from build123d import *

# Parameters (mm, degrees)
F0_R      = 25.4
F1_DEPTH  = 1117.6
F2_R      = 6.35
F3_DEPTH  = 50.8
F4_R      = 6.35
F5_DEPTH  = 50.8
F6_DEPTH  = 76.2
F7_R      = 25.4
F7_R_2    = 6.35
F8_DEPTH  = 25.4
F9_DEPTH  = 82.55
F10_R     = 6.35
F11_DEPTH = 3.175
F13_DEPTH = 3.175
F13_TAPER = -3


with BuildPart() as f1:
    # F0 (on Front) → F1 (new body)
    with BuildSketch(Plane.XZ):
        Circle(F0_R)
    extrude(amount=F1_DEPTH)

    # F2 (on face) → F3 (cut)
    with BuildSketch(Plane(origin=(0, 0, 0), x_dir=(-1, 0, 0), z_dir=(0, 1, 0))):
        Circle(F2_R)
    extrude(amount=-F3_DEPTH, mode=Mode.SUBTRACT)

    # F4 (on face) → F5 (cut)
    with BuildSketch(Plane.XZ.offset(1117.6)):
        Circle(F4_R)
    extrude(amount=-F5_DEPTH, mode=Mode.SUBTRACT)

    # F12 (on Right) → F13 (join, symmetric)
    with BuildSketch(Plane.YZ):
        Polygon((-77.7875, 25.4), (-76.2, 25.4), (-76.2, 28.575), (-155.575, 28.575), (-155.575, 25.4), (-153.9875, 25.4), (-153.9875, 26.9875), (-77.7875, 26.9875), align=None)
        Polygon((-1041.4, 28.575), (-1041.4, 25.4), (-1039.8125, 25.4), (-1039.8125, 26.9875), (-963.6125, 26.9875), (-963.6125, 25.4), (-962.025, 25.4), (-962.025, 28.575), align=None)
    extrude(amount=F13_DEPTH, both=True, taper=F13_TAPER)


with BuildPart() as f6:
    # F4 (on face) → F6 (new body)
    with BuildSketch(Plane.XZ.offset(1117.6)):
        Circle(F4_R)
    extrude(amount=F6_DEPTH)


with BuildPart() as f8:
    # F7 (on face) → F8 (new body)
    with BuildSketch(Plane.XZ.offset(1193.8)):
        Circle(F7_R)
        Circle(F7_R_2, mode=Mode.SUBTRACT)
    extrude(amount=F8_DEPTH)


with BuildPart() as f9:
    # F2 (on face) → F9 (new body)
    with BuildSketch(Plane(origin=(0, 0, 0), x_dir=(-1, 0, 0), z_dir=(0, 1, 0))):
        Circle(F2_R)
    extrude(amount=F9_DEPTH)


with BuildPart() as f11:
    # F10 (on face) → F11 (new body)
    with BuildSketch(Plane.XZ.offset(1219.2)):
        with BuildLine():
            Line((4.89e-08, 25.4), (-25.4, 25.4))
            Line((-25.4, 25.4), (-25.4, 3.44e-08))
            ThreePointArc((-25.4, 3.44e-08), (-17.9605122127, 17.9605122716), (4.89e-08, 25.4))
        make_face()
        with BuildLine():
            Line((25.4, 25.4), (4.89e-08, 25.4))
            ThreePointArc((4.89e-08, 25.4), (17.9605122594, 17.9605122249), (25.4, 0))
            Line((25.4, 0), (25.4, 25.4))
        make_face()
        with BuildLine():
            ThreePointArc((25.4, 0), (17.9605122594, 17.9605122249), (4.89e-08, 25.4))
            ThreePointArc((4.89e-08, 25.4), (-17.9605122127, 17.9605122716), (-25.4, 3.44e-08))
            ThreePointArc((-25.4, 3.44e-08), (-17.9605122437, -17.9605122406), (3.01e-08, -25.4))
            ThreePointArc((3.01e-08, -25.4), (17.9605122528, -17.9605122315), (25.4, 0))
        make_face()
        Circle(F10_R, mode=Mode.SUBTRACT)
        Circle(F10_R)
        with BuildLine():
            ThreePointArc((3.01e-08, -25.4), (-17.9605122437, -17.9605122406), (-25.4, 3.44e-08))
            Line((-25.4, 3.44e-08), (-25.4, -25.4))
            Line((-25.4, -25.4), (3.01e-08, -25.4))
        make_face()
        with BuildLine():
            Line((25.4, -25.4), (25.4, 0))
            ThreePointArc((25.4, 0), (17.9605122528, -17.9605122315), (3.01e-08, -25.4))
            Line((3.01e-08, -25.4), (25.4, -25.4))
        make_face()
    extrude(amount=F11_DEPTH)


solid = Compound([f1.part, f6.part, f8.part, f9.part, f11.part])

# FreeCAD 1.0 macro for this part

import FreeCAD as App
import Part
import Sketcher

V = App.Vector
Q = App.Units.Quantity


def add_polygon(sketch, points):
    """Adds a closed chain of lines whose ends are joined by coincident constraints."""
    first, n = sketch.GeometryCount, len(points)
    for a, b in zip(points, points[1:] + points[:1]):
        sketch.addGeometry(Part.LineSegment(App.Vector(*a, 0), App.Vector(*b, 0)), False)
    for i in range(n):
        sketch.addConstraint(Sketcher.Constraint("Coincident", first + i, 2, first + (i + 1) % n, 1))

doc = App.newDocument("Part")
body = doc.addObject("PartDesign::Body", "Body")

sketch1 = doc.addObject("Sketcher::SketchObject", "Sketch")
body.addObject(sketch1)
sketch1.AttachmentSupport = (doc.XZ_Plane, [""])
sketch1.MapMode = "FlatFace"
sketch1.addGeometry(Part.Circle(V(0, 0, 0), V(0, 0, 1), 25.4), False)
sketch1.addConstraint(Sketcher.Constraint("Coincident", 0, 3, -1, 1))
sketch1.addConstraint(Sketcher.Constraint("Diameter", 0, Q("2 in")))
pad1 = doc.addObject("PartDesign::Pad", "Pad")
body.addObject(pad1)
pad1.Profile = sketch1
pad1.Length = Q("44 in")

sketch2 = doc.addObject("Sketcher::SketchObject", "Sketch001")
body.addObject(sketch2)
sketch2.AttachmentSupport = (doc.XZ_Plane, [""])
sketch2.MapMode = "FlatFace"
sketch2.addGeometry(Part.Circle(V(0, 0, 0), V(0, 0, 1), 6.35), False)
sketch2.addConstraint(Sketcher.Constraint("Coincident", 0, 3, -1, 1))
sketch2.addConstraint(Sketcher.Constraint("Diameter", 0, Q("0.5 in")))
pocket1 = doc.addObject("PartDesign::Pocket", "Pocket")
body.addObject(pocket1)
pocket1.Profile = sketch2
pocket1.Length = Q("2 in")
pocket1.Reversed = True

sketch3 = doc.addObject("Sketcher::SketchObject", "Sketch002")
body.addObject(sketch3)
sketch3.AttachmentSupport = (doc.XZ_Plane, [""])
sketch3.MapMode = "FlatFace"
sketch3.AttachmentOffset = App.Placement(V(0, 0, 44 * 25.4), App.Rotation())
sketch3.addGeometry(Part.Circle(V(0, 0, 0), V(0, 0, 1), 6.35), False)
sketch3.addConstraint(Sketcher.Constraint("Coincident", 0, 3, -1, 1))
sketch3.addConstraint(Sketcher.Constraint("Diameter", 0, Q("0.5 in")))
pocket2 = doc.addObject("PartDesign::Pocket", "Pocket001")
body.addObject(pocket2)
pocket2.Profile = sketch3
pocket2.Length = Q("2 in")

sketch4 = doc.addObject("Sketcher::SketchObject", "Sketch003")
body.addObject(sketch4)
sketch4.AttachmentSupport = (doc.YZ_Plane, [""])
sketch4.MapMode = "FlatFace"
add_polygon(sketch4, [(-77.7875, 25.4), (-76.2, 25.4), (-76.2, 28.575), (-155.575, 28.575), (-155.575, 25.4), (-153.9875, 25.4), (-153.9875, 26.9875), (-77.7875, 26.9875)])
add_polygon(sketch4, [(-1041.4, 28.575), (-1041.4, 25.4), (-1039.8125, 25.4), (-1039.8125, 26.9875), (-963.6125, 26.9875), (-963.6125, 25.4), (-962.025, 25.4), (-962.025, 28.575)])
sketch4.addConstraint(Sketcher.Constraint("Horizontal", 0))
sketch4.addConstraint(Sketcher.Constraint("Vertical", 1))
sketch4.addConstraint(Sketcher.Constraint("Horizontal", 2))
sketch4.addConstraint(Sketcher.Constraint("Vertical", 3))
sketch4.addConstraint(Sketcher.Constraint("Horizontal", 4))
sketch4.addConstraint(Sketcher.Constraint("Vertical", 5))
sketch4.addConstraint(Sketcher.Constraint("Horizontal", 6))
sketch4.addConstraint(Sketcher.Constraint("Vertical", 7))
sketch4.addConstraint(Sketcher.Constraint("Vertical", 8))
sketch4.addConstraint(Sketcher.Constraint("Horizontal", 9))
sketch4.addConstraint(Sketcher.Constraint("Vertical", 10))
sketch4.addConstraint(Sketcher.Constraint("Horizontal", 11))
sketch4.addConstraint(Sketcher.Constraint("Vertical", 12))
sketch4.addConstraint(Sketcher.Constraint("Horizontal", 13))
sketch4.addConstraint(Sketcher.Constraint("Vertical", 14))
sketch4.addConstraint(Sketcher.Constraint("Horizontal", 15))
sketch4.addConstraint(Sketcher.Constraint("Horizontal", 0, 2, 3, 2))
sketch4.addConstraint(Sketcher.Constraint("Horizontal", 7, 2, 8, 2))
sketch4.addConstraint(Sketcher.Constraint("Horizontal", 6, 2, 10, 2))
sketch4.addConstraint(Sketcher.Constraint("Horizontal", 9, 2, 12, 2))
sketch4.addConstraint(Sketcher.Constraint("Horizontal", 2, 2, 14, 2))
sketch4.addConstraint(Sketcher.Constraint("Equal", 0, 4))
sketch4.addConstraint(Sketcher.Constraint("Equal", 4, 9))
sketch4.addConstraint(Sketcher.Constraint("Equal", 6, 11))
sketch4.addConstraint(Sketcher.Constraint("Equal", 9, 13))
sketch4.addConstraint(Sketcher.Constraint("Equal", 13, 5))
sketch4.addConstraint(Sketcher.Constraint("DistanceX", 6, 1, 6, 2, Q("3 in")))
sketch4.addConstraint(Sketcher.Constraint("DistanceX", 0, 2, -1, 1, Q("3 in")))
sketch4.addConstraint(Sketcher.Constraint("DistanceY", -1, 1, 0, 2, Q("1 in")))
sketch4.addConstraint(Sketcher.Constraint("DistanceX", 8, 2, -1, 1, Q("41 in")))
sketch4.addConstraint(Sketcher.Constraint("DistanceX", 0, 1, 0, 2, Q("0.0625 in")))
sketch4.addConstraint(Sketcher.Constraint("DistanceY", 1, 1, 1, 2, Q("0.125 in")))
pad2 = doc.addObject("PartDesign::Pad", "Pad001")
body.addObject(pad2)
pad2.Profile = sketch4
pad2.Length = Q("0.25 in")
pad2.Midplane = True
pad2.TaperAngle = 3
body2 = doc.addObject("PartDesign::Body", "Body001")

sketch5 = doc.addObject("Sketcher::SketchObject", "Sketch004")
body2.addObject(sketch5)
sketch5.AttachmentSupport = (doc.getObject("XZ_Plane001"), [""])
sketch5.MapMode = "FlatFace"
sketch5.AttachmentOffset = App.Placement(V(0, 0, 44 * 25.4), App.Rotation())
sketch5.addGeometry(Part.Circle(V(0, 0, 0), V(0, 0, 1), 6.35), False)
sketch5.addConstraint(Sketcher.Constraint("Coincident", 0, 3, -1, 1))
sketch5.addConstraint(Sketcher.Constraint("Diameter", 0, Q("0.5 in")))
pad3 = doc.addObject("PartDesign::Pad", "Pad002")
body2.addObject(pad3)
pad3.Profile = sketch5
pad3.Length = Q("3 in")
body3 = doc.addObject("PartDesign::Body", "Body002")

sketch6 = doc.addObject("Sketcher::SketchObject", "Sketch005")
body3.addObject(sketch6)
sketch6.AttachmentSupport = (doc.getObject("XZ_Plane002"), [""])
sketch6.MapMode = "FlatFace"
sketch6.AttachmentOffset = App.Placement(V(0, 0, 47 * 25.4), App.Rotation())
sketch6.addGeometry(Part.Circle(V(0, 0, 0), V(0, 0, 1), 25.4), False)
sketch6.addGeometry(Part.Circle(V(0, 0, 0), V(0, 0, 1), 6.35), False)
sketch6.addConstraint(Sketcher.Constraint("Coincident", 0, 3, -1, 1))
sketch6.addConstraint(Sketcher.Constraint("Coincident", 1, 3, -1, 1))
sketch6.addConstraint(Sketcher.Constraint("Diameter", 0, Q("2 in")))
sketch6.addConstraint(Sketcher.Constraint("Diameter", 1, Q("0.5 in")))
pad4 = doc.addObject("PartDesign::Pad", "Pad003")
body3.addObject(pad4)
pad4.Profile = sketch6
pad4.Length = Q("1 in")
body4 = doc.addObject("PartDesign::Body", "Body003")

sketch7 = doc.addObject("Sketcher::SketchObject", "Sketch006")
body4.addObject(sketch7)
sketch7.AttachmentSupport = (doc.getObject("XZ_Plane003"), [""])
sketch7.MapMode = "FlatFace"
sketch7.addGeometry(Part.Circle(V(0, 0, 0), V(0, 0, 1), 6.35), False)
sketch7.addConstraint(Sketcher.Constraint("Coincident", 0, 3, -1, 1))
sketch7.addConstraint(Sketcher.Constraint("Diameter", 0, Q("0.5 in")))
pad5 = doc.addObject("PartDesign::Pad", "Pad004")
body4.addObject(pad5)
pad5.Profile = sketch7
pad5.Length = Q("3.25 in")
pad5.Reversed = True
body5 = doc.addObject("PartDesign::Body", "Body004")

sketch8 = doc.addObject("Sketcher::SketchObject", "Sketch007")
body5.addObject(sketch8)
sketch8.AttachmentSupport = (doc.getObject("XZ_Plane004"), [""])
sketch8.MapMode = "FlatFace"
sketch8.AttachmentOffset = App.Placement(V(0, 0, 48 * 25.4), App.Rotation())
add_polygon(sketch8, [(-25.4, 25.4), (-25.4, -25.4), (25.4, -25.4), (25.4, 25.4)])
sketch8.addConstraint(Sketcher.Constraint("Vertical", 0))
sketch8.addConstraint(Sketcher.Constraint("Horizontal", 1))
sketch8.addConstraint(Sketcher.Constraint("Vertical", 2))
sketch8.addConstraint(Sketcher.Constraint("Horizontal", 3))
sketch8.addConstraint(Sketcher.Constraint("Symmetric", 0, 2, 2, 2, -1, 1))
sketch8.addConstraint(Sketcher.Constraint("Equal", 3, 0))
sketch8.addConstraint(Sketcher.Constraint("DistanceX", 1, 1, 1, 2, Q("2 in")))
pad6 = doc.addObject("PartDesign::Pad", "Pad005")
body5.addObject(pad6)
pad6.Profile = sketch8
pad6.Length = Q("0.125 in")

doc.recompute()
